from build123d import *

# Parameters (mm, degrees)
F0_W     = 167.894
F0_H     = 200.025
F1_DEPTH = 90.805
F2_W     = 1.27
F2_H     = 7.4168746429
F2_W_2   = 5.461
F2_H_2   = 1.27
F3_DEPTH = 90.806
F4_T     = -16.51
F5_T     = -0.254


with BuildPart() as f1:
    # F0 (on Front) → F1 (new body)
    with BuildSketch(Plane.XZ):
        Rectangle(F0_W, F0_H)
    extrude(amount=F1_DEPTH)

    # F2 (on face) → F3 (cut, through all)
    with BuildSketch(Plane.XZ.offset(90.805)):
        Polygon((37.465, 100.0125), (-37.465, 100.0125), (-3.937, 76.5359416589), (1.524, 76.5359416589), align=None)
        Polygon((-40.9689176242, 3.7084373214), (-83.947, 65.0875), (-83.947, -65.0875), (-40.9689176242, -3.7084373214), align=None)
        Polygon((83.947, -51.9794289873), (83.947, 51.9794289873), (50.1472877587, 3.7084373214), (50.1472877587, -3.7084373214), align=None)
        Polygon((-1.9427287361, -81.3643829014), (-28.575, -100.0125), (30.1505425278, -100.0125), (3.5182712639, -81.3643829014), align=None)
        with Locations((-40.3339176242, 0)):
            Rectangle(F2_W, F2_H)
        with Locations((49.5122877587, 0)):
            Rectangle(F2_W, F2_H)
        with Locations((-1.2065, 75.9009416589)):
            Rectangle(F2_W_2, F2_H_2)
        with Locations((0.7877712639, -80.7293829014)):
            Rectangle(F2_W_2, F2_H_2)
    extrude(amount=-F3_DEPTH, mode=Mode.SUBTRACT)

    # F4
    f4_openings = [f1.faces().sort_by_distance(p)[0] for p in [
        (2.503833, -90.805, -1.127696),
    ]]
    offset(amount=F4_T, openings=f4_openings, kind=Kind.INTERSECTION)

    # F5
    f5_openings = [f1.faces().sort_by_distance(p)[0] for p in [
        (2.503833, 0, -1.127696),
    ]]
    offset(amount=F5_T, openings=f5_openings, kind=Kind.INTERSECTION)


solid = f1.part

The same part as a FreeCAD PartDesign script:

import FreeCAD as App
import Part
import Sketcher
from FreeCAD import Vector
Q = App.Units.Quantity


def faces_at(feature, points):
    """Names of the faces that lie closest to the given points."""
    faces = feature.Shape.Faces
    near = lambda p: min(range(len(faces)), key=lambda i: faces[i].distToShape(Part.Vertex(*p))[0])
    return sorted({f"Face{near(p) + 1}" for p in points})


def add_polygon(sketch, points):
    """Adds a closed chain of lines whose ends are joined by coincident constraints."""
    first, n = sketch.GeometryCount, len(points)
    for a, b in zip(points, points[1:] + points[:1]):
        sketch.addGeometry(Part.LineSegment(App.Vector(*a, 0), App.Vector(*b, 0)), False)
    for i in range(n):
        sketch.addConstraint(Sketcher.Constraint("Coincident", first + i, 2, first + (i + 1) % n, 1))

doc = App.newDocument("Part")
params = doc.addObject("Spreadsheet::Sheet", "Params")
for row, (alias, value) in enumerate([
    ("sketch1_width", "6.61 in"),
    ("sketch1_height", "7.875 in"),
    ("pad1_length", "3.575 in"),
    ("sketch2_width", "2.95 in"),
    ("sketch2_width2", "0.05 in"),
    ("sketch2_length", "2.95 in"),
    ("sketch2_length2", "2.32 in"),
    ("sketch2_length3", "1.28 in"),
    ("thickness_wall", "0.65 in"),
    ("thickness2_wall", "0.01 in"),
], start=1):
    params.set(f"A{row}", alias)
    params.set(f"B{row}", "=" + value)
    params.setAlias(f"B{row}", alias)

body = doc.addObject("PartDesign::Body", "Body")

# Sketch on XZ plane
sketch1 = body.newObject("Sketcher::SketchObject", "Sketch")
sketch1.AttachmentSupport = (doc.getObject("XZ_Plane"), [""])
sketch1.MapMode = "FlatFace"
add_polygon(sketch1, [(-84, 100), (-84, -100), (84, -100), (84, 100)])  # lines 0-3
sketch1.addConstraint(Sketcher.Constraint("Vertical", 0))
sketch1.addConstraint(Sketcher.Constraint("Horizontal", 1))
sketch1.addConstraint(Sketcher.Constraint("Vertical", 2))
sketch1.addConstraint(Sketcher.Constraint("Horizontal", 3))
sketch1.addConstraint(Sketcher.Constraint("Symmetric", 0, 2, 2, 2, -1, 1))
sketch1.addConstraint(Sketcher.Constraint("DistanceX", 1, 1, 1, 2, Q("6.61 in")))
sketch1.addConstraint(Sketcher.Constraint("DistanceY", 0, 2, 0, 1, Q("7.875 in")))
sketch1.setExpression("Constraints[9]", "Params.sketch1_width")
sketch1.setExpression("Constraints[10]", "Params.sketch1_height")
pad1 = body.newObject("PartDesign::Pad", "Pad")
pad1.Profile = sketch1
pad1.setExpression("Length", "Params.pad1_length")

# Sketch on XZ plane
sketch2 = body.newObject("Sketcher::SketchObject", "Sketch001")
sketch2.AttachmentSupport = (doc.getObject("XZ_Plane"), [""])
sketch2.MapMode = "FlatFace"
sketch2.AttachmentOffset = App.Placement(Vector(0, 0, 3.575 * 25.4), App.Rotation())
add_polygon(sketch2, [(37.5, 100), (-37.5, 100), (-3.9, 76.5), (-3.9, 75.3), (1.5, 75.3), (1.5, 76.5)])  # lines 0-5
add_polygon(sketch2, [(-41, 3.7), (-83.9, 65.1), (-83.9, -65.1), (-41, -3.7), (-39.7, -3.7), (-39.7, 3.7)])  # lines 6-11
add_polygon(sketch2, [(83.9, -52), (83.9, 52), (50.1, 3.7), (48.9, 3.7), (48.9, -3.7), (50.1, -3.7)])  # lines 12-17
add_polygon(sketch2, [(-1.9, -81.4), (-28.6, -100), (30.2, -100), (3.5, -81.4), (3.5, -80.1), (-1.9, -80.1)])  # lines 18-23
sketch2.addConstraint(Sketcher.Constraint("Horizontal", 0))
sketch2.addConstraint(Sketcher.Constraint("Vertical", 2))
sketch2.addConstraint(Sketcher.Constraint("Horizontal", 3))
sketch2.addConstraint(Sketcher.Constraint("Vertical", 4))
sketch2.addConstraint(Sketcher.Constraint("Vertical", 7))
sketch2.addConstraint(Sketcher.Constraint("Horizontal", 9))
sketch2.addConstraint(Sketcher.Constraint("Vertical", 10))
sketch2.addConstraint(Sketcher.Constraint("Horizontal", 11))
sketch2.addConstraint(Sketcher.Constraint("Vertical", 12))
sketch2.addConstraint(Sketcher.Constraint("Horizontal", 14))
sketch2.addConstraint(Sketcher.Constraint("Vertical", 15))
sketch2.addConstraint(Sketcher.Constraint("Horizontal", 16))
sketch2.addConstraint(Sketcher.Constraint("Horizontal", 19))
sketch2.addConstraint(Sketcher.Constraint("Vertical", 21))
sketch2.addConstraint(Sketcher.Constraint("Horizontal", 22))
sketch2.addConstraint(Sketcher.Constraint("Vertical", 23))
sketch2.addConstraint(Sketcher.Constraint("Symmetric", 8, 2, 11, 2, -1))
sketch2.addConstraint(Sketcher.Constraint("Symmetric", 13, 2, 16, 2, -1))
sketch2.addConstraint(Sketcher.Constraint("Perpendicular", 1, 8))
sketch2.addConstraint(Sketcher.Constraint("Parallel", 8, 13))
sketch2.addConstraint(Sketcher.Constraint("Parallel", 6, 17))
sketch2.addConstraint(Sketcher.Constraint("Perpendicular", 17, 18))
sketch2.addConstraint(Sketcher.Constraint("Perpendicular", 13, 20))
sketch2.addConstraint(Sketcher.Constraint("Horizontal", 1, 2, 4, 2))
sketch2.addConstraint(Sketcher.Constraint("Horizontal", 11, 2, 13, 2))
sketch2.addConstraint(Sketcher.Constraint("Horizontal", 20, 2, 23, 2))
sketch2.addConstraint(Sketcher.Constraint("Equal", 11, 14))
sketch2.addConstraint(Sketcher.Constraint("Equal", 3, 22))
sketch2.addConstraint(Sketcher.Constraint("Equal", 16, 2))
sketch2.addConstraint(Sketcher.Constraint("Equal", 4, 21))
sketch2.addConstraint(Sketcher.Constraint("Equal", 6, 8))
sketch2.addConstraint(Sketcher.Constraint("Angle", 1, Q("-35 deg")))
sketch2.addConstraint(Sketcher.Constraint("DistanceX", 0, 2, 0, 1, Q("2.95 in")))
sketch2.addConstraint(Sketcher.Constraint("DistanceX", 9, 1, 9, 2, Q("0.05 in")))
sketch2.addConstraint(Sketcher.Constraint("Distance", 6, Q("2.95 in")))
sketch2.addConstraint(Sketcher.Constraint("Distance", 13, Q("2.32 in")))
sketch2.addConstraint(Sketcher.Constraint("Distance", 18, Q("1.28 in")))
sketch2.addConstraint(Sketcher.Constraint("DistanceX", 3, 1, 3, 2, Q("0.215 in")))
sketch2.addConstraint(Sketcher.Constraint("DistanceY", 7, 2, 7, 1, Q("5.125 in")))
sketch2.addConstraint(Sketcher.Constraint("DistanceX", -1, 1, 3, 2, Q("0.06 in")))
sketch2.addConstraint(Sketcher.Constraint("DistanceX", 0, 2, 1, 2, Q("1.32 in")))
sketch2.addConstraint(Sketcher.Constraint("DistanceX", 6, 2, 0, 2, Q("1.83 in")))
sketch2.addConstraint(Sketcher.Constraint("DistanceX", 5, 2, 12, 2, Q("1.83 in")))
sketch2.addConstraint(Sketcher.Constraint("DistanceX", 7, 2, 18, 2, Q("2.18 in")))
sketch2.addConstraint(Sketcher.Constraint("DistanceY", -1, 1, 0, 2, Q("3.9375 in")))
sketch2.addConstraint(Sketcher.Constraint("DistanceY", 18, 2, -1, 1, Q("3.9375 in")))
sketch2.setExpression("Constraints[56]", "Params.sketch2_width")
sketch2.setExpression("Constraints[57]", "Params.sketch2_width2")
sketch2.setExpression("Constraints[58]", "Params.sketch2_length")
sketch2.setExpression("Constraints[59]", "Params.sketch2_length2")
sketch2.setExpression("Constraints[60]", "Params.sketch2_length3")
pocket1 = body.newObject("PartDesign::Pocket", "Pocket")
pocket1.Profile = sketch2
pocket1.Type = "ThroughAll"
doc.recompute()

thickness = body.newObject("PartDesign::Thickness", "Thickness")
thickness.Base = (pocket1, faces_at(pocket1, [(0, -90.805, 0)]))
thickness.setExpression("Value", "Params.thickness_wall")
thickness.Reversed = True
thickness.Join = "Intersection"
doc.recompute()

thickness2 = body.newObject("PartDesign::Thickness", "Thickness001")
thickness2.Base = (thickness, faces_at(thickness, [(0, 0, 0)]))
thickness2.setExpression("Value", "Params.thickness2_wall")
thickness2.Reversed = True
thickness2.Join = "Intersection"

doc.recompute()
